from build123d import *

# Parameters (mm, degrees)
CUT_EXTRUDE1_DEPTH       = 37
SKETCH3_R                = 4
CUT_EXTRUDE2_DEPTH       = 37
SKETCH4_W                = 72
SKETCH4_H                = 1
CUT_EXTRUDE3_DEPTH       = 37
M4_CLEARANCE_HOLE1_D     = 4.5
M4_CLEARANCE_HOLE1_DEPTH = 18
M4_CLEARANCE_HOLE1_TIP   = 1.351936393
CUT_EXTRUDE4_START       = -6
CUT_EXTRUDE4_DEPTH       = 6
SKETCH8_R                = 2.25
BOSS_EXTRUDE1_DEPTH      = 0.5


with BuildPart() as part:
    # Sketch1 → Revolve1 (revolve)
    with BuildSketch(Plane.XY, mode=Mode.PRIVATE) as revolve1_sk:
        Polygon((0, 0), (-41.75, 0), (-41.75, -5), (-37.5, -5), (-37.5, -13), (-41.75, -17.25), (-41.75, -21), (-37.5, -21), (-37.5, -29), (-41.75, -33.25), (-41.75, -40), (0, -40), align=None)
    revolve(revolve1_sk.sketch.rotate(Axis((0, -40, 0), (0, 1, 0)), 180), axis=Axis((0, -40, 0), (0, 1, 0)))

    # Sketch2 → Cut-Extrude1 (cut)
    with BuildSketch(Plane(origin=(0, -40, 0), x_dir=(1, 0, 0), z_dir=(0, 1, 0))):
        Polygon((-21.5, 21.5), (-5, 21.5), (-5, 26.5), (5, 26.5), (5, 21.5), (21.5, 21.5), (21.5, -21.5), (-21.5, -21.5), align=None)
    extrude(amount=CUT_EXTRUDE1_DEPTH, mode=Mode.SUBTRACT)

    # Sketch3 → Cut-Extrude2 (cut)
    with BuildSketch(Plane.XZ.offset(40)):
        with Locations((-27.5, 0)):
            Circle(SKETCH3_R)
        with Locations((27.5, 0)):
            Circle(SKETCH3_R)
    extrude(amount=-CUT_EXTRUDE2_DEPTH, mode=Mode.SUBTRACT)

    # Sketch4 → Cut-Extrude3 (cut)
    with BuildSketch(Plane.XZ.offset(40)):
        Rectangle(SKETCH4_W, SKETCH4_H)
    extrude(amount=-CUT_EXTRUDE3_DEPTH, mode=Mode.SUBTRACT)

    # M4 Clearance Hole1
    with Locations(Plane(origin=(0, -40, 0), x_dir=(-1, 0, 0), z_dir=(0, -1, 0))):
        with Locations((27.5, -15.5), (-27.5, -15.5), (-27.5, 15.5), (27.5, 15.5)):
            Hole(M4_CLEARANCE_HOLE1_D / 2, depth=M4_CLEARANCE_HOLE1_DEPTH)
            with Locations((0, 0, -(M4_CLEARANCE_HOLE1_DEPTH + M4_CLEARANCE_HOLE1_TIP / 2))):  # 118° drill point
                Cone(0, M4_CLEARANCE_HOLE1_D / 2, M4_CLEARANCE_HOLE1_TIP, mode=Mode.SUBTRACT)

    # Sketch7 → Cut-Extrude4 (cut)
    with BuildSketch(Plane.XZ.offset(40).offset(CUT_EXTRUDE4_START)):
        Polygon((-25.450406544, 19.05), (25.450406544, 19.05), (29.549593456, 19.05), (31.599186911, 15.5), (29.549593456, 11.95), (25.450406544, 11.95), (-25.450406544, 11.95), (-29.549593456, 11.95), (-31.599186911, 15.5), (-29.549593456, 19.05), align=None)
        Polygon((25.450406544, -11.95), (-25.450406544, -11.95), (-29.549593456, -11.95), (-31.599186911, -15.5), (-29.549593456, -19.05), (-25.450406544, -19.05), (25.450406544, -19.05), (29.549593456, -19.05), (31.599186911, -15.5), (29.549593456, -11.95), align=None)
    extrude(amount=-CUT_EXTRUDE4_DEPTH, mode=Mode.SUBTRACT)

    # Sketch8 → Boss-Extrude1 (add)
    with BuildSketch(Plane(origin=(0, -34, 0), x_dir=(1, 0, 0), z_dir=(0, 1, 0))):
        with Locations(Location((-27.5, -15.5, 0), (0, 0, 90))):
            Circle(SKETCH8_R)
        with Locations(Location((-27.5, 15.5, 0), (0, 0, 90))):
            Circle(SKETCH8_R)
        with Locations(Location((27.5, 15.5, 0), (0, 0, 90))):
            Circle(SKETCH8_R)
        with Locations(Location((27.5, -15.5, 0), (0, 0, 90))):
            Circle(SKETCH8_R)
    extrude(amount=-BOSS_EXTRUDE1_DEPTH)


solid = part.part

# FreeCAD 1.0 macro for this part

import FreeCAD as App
import Part
import Sketcher
from FreeCAD import Vector
Q = App.Units.Quantity


def add_polygon(sketch, points):
    """Adds a closed chain of lines whose ends are joined by coincident constraints."""
    first, n = sketch.GeometryCount, len(points)
    for a, b in zip(points, points[1:] + points[:1]):
        sketch.addGeometry(Part.LineSegment(App.Vector(*a, 0), App.Vector(*b, 0)), False)
    for i in range(n):
        sketch.addConstraint(Sketcher.Constraint("Coincident", first + i, 2, first + (i + 1) % n, 1))

doc = App.newDocument("Part")
body = doc.addObject("PartDesign::Body", "Body")

# Sketch on XY plane
sketch1 = body.newObject("Sketcher::SketchObject", "Sketch")
sketch1.AttachmentSupport = (doc.getObject("XY_Plane"), [""])
sketch1.MapMode = "FlatFace"
add_polygon(sketch1, [(0, 0), (-41.75, 0), (-41.75, -5), (-37.5, -5), (-37.5, -13), (-41.75, -17.25), (-41.75, -21), (-37.5, -21), (-37.5, -29), (-41.75, -33.25), (-41.75, -40), (0, -40)])  # lines 0-11
sketch1.addConstraint([
    Sketcher.Constraint("Horizontal", 0),
    Sketcher.Constraint("Vertical", 1),
    Sketcher.Constraint("Horizontal", 2),
    Sketcher.Constraint("Vertical", 3),
    Sketcher.Constraint("Vertical", 5),
    Sketcher.Constraint("Horizontal", 6),
    Sketcher.Constraint("Vertical", 7),
    Sketcher.Constraint("Vertical", 9),
    Sketcher.Constraint("Horizontal", 10),
    Sketcher.Constraint("Vertical", 11),
    Sketcher.Constraint("Coincident", 11, 2, -1, 1),
    Sketcher.Constraint("Parallel", 4, 8),
    Sketcher.Constraint("Vertical", 1, 2, 4, 2),
    Sketcher.Constraint("Vertical", 3, 2, 6, 2),
    Sketcher.Constraint("Vertical", 5, 2, 8, 2),
    Sketcher.Constraint("Equal", 3, 7),
    Sketcher.Constraint("DistanceY", 1, 2, 1, 1, Q("5 mm")),
    Sketcher.Constraint("DistanceY", 3, 2, 3, 1, Q("8 mm")),
    Sketcher.Constraint("DistanceY", 11, 1, 11, 2, Q("40 mm")),
    Sketcher.Constraint("Angle", 4, Q("-135 deg")),
    Sketcher.Constraint("DistanceY", 5, 2, -1, 1, Q("21 mm")),
    Sketcher.Constraint("DistanceX", 0, 2, 0, 1, Q("41.75 mm")),
    Sketcher.Constraint("DistanceX", 2, 1, 2, 2, Q("4.25 mm")),
])
revolution = body.newObject("PartDesign::Revolution", "Revolution")
revolution.Profile = sketch1
revolution.ReferenceAxis = (sketch1, ["V_Axis"])
revolution.Angle = 360

# Sketch on XZ plane
sketch2 = body.newObject("Sketcher::SketchObject", "Sketch001")
sketch2.AttachmentSupport = (doc.getObject("XZ_Plane"), [""])
sketch2.MapMode = "FlatFace"
sketch2.AttachmentOffset = App.Placement(Vector(0, 0, 40), App.Rotation())
add_polygon(sketch2, [(-5, -21.5), (-21.5, -21.5), (-21.5, 21.5), (21.5, 21.5), (21.5, -21.5), (5, -21.5), (5, -26.5), (-5, -26.5)])  # lines 0-7
sketch2.addConstraint([
    Sketcher.Constraint("Horizontal", 0),
    Sketcher.Constraint("Vertical", 1),
    Sketcher.Constraint("Horizontal", 2),
    Sketcher.Constraint("Vertical", 3),
    Sketcher.Constraint("Horizontal", 4),
    Sketcher.Constraint("Vertical", 5),
    Sketcher.Constraint("Horizontal", 6),
    Sketcher.Constraint("Vertical", 7),
    Sketcher.Constraint("Symmetric", 0, 2, 2, 2, -1, 1),
    Sketcher.Constraint("Symmetric", 4, 2, 7, 2, -2),
    Sketcher.Constraint("Equal", 2, 1),
    Sketcher.Constraint("DistanceX", 2, 1, 2, 2, Q("43 mm")),
    Sketcher.Constraint("DistanceX", 6, 2, 6, 1, Q("10 mm")),
    Sketcher.Constraint("DistanceY", 5, 2, 5, 1, Q("5 mm")),
])
pocket1 = body.newObject("PartDesign::Pocket", "Pocket")
pocket1.Profile = sketch2
pocket1.Length = 37

# Sketch on XZ plane
sketch3 = body.newObject("Sketcher::SketchObject", "Sketch002")
sketch3.AttachmentSupport = (doc.getObject("XZ_Plane"), [""])
sketch3.MapMode = "FlatFace"
sketch3.AttachmentOffset = App.Placement(Vector(0, 0, 40), App.Rotation())
sketch3.addGeometry([
    Part.Circle(Vector(-27.5, 0, 0), Vector(0, 0, 1), 4),
    Part.Circle(Vector(27.5, 0, 0), Vector(0, 0, 1), 4),
], False)
sketch3.addConstraint([
    Sketcher.Constraint("Equal", 0, 1),
    Sketcher.Constraint("Symmetric", 0, 3, 1, 3, -1, 1),
    Sketcher.Constraint("PointOnObject", 0, 3, -1),
    Sketcher.Constraint("Diameter", 0, Q("8 mm")),
    Sketcher.Constraint("DistanceX", 0, 3, 1, 3, Q("55 mm")),
])
pocket2 = body.newObject("PartDesign::Pocket", "Pocket001")
pocket2.Profile = sketch3
pocket2.Length = 37

# Sketch on XZ plane
sketch4 = body.newObject("Sketcher::SketchObject", "Sketch003")
sketch4.AttachmentSupport = (doc.getObject("XZ_Plane"), [""])
sketch4.MapMode = "FlatFace"
sketch4.AttachmentOffset = App.Placement(Vector(0, 0, 40), App.Rotation())
add_polygon(sketch4, [(-36, 0.5), (-36, -0.5), (36, -0.5), (36, 0.5)])  # lines 0-3
sketch4.addConstraint([
    Sketcher.Constraint("Vertical", 0),
    Sketcher.Constraint("Horizontal", 1),
    Sketcher.Constraint("Vertical", 2),
    Sketcher.Constraint("Horizontal", 3),
    Sketcher.Constraint("Symmetric", 0, 2, 2, 2, -1, 1),
    Sketcher.Constraint("DistanceX", 1, 1, 1, 2, Q("72 mm")),
    Sketcher.Constraint("DistanceY", 0, 2, 0, 1, Q("1 mm")),
])
pocket3 = body.newObject("PartDesign::Pocket", "Pocket002")
pocket3.Profile = sketch4
pocket3.Length = 37

# Sketch on XZ plane
sketch5 = body.newObject("Sketcher::SketchObject", "Sketch004")
sketch5.AttachmentSupport = (doc.getObject("XZ_Plane"), [""])
sketch5.MapMode = "FlatFace"
sketch5.AttachmentOffset = App.Placement(Vector(0, 0, 40), App.Rotation())
sketch5.addGeometry([
    Part.Circle(Vector(-27.5, 15.5, 0), Vector(0, 0, 1), 2.25),
    Part.Circle(Vector(27.5, 15.5, 0), Vector(0, 0, 1), 2.25),
    Part.Circle(Vector(27.5, -15.5, 0), Vector(0, 0, 1), 2.25),
    Part.Circle(Vector(-27.5, -15.5, 0), Vector(0, 0, 1), 2.25),
], False)
sketch5.addConstraint([
    Sketcher.Constraint("Equal", 0, 1),
    Sketcher.Constraint("Equal", 1, 2),
    Sketcher.Constraint("Equal", 2, 3),
    Sketcher.Constraint("Symmetric", 0, 3, 2, 3, -1, 1),
    Sketcher.Constraint("Symmetric", 1, 3, 3, 3, -1, 1),
    Sketcher.Constraint("Symmetric", 0, 3, 1, 3, -2),
    Sketcher.Constraint("Diameter", 0, Q("4.5 mm")),
    Sketcher.Constraint("DistanceX", 0, 3, 1, 3, Q("55 mm")),
    Sketcher.Constraint("DistanceY", 2, 3, 1, 3, Q("31 mm")),
])
doc.recompute()
hole = body.newObject("PartDesign::Hole", "Hole")
hole.Profile = sketch5
hole.ThreadType = "None"
hole.Diameter = 4.5
hole.DepthType = "Dimension"
hole.Depth = 18
hole.DrillPoint = "Angled"
hole.DrillPointAngle = 118

# Sketch on XZ plane
sketch6 = body.newObject("Sketcher::SketchObject", "Sketch005")
sketch6.AttachmentSupport = (doc.getObject("XZ_Plane"), [""])
sketch6.MapMode = "FlatFace"
sketch6.AttachmentOffset = App.Placement(Vector(0, 0, 34), App.Rotation())
add_polygon(sketch6, [(29.549593, 19.05), (-29.549593, 19.05), (-31.599187, 15.5), (-29.549593, 11.95), (29.549593, 11.95), (31.599187, 15.5)])  # lines 0-5
add_polygon(sketch6, [(-29.549593, -11.95), (-31.599187, -15.5), (-29.549593, -19.05), (29.549593, -19.05), (31.599187, -15.5), (29.549593, -11.95)])  # lines 6-11
sketch6.addConstraint([
    Sketcher.Constraint("Horizontal", 0),
    Sketcher.Constraint("Horizontal", 3),
    Sketcher.Constraint("Horizontal", 8),
    Sketcher.Constraint("Horizontal", 11),
    Sketcher.Constraint("Symmetric", 4, 2, 6, 2, -1, 1),
    Sketcher.Constraint("Symmetric", 5, 2, 7, 2, -1, 1),
    Sketcher.Constraint("Symmetric", 1, 2, 9, 2, -1, 1),
    Sketcher.Constraint("Symmetric", 2, 2, 10, 2, -1, 1),
    Sketcher.Constraint("Symmetric", 1, 2, 4, 2, -2),
    Sketcher.Constraint("Parallel", 1, 4),
    Sketcher.Constraint("Parallel", 2, 5),
    Sketcher.Constraint("Parallel", 4, 6),
    Sketcher.Constraint("Parallel", 6, 9),
    Sketcher.Constraint("Vertical", 0, 2, 2, 2),
    Sketcher.Constraint("Vertical", 3, 2, 5, 2),
    Sketcher.Constraint("Angle", 1, Q("-120 deg")),
    Sketcher.Constraint("DistanceY", 6, 2, 1, 2, Q("31 mm")),
    Sketcher.Constraint("DistanceY", 2, 2, 0, 2, Q("7.1 mm")),
    Sketcher.Constraint("DistanceX", 0, 2, 0, 1, Q("59.099187 mm")),
])
pocket4 = body.newObject("PartDesign::Pocket", "Pocket003")
pocket4.Profile = sketch6
pocket4.Length = 6

# Sketch on XZ plane
sketch7 = body.newObject("Sketcher::SketchObject", "Sketch006")
sketch7.AttachmentSupport = (doc.getObject("XZ_Plane"), [""])
sketch7.MapMode = "FlatFace"
sketch7.AttachmentOffset = App.Placement(Vector(0, 0, 34), App.Rotation())
sketch7.addGeometry([
    Part.Circle(Vector(-27.5, 15.5, 0), Vector(0, 0, 1), 2.25),
    Part.Circle(Vector(-27.5, -15.5, 0), Vector(0, 0, 1), 2.25),
    Part.Circle(Vector(27.5, -15.5, 0), Vector(0, 0, 1), 2.25),
    Part.Circle(Vector(27.5, 15.5, 0), Vector(0, 0, 1), 2.25),
], False)
sketch7.addConstraint([
    Sketcher.Constraint("Equal", 0, 1),
    Sketcher.Constraint("Equal", 1, 2),
    Sketcher.Constraint("Equal", 2, 3),
    Sketcher.Constraint("Symmetric", 0, 3, 2, 3, -1, 1),
    Sketcher.Constraint("Symmetric", 1, 3, 3, 3, -1, 1),
    Sketcher.Constraint("Symmetric", 1, 3, 2, 3, -2),
    Sketcher.Constraint("Diameter", 0, Q("4.5 mm")),
    Sketcher.Constraint("DistanceY", 1, 3, 0, 3, Q("31 mm")),
    Sketcher.Constraint("DistanceX", 1, 3, 2, 3, Q("55 mm")),
])
pad1 = body.newObject("PartDesign::Pad", "Pad")
pad1.Profile = sketch7
pad1.Length = 0.5

doc.recompute()
